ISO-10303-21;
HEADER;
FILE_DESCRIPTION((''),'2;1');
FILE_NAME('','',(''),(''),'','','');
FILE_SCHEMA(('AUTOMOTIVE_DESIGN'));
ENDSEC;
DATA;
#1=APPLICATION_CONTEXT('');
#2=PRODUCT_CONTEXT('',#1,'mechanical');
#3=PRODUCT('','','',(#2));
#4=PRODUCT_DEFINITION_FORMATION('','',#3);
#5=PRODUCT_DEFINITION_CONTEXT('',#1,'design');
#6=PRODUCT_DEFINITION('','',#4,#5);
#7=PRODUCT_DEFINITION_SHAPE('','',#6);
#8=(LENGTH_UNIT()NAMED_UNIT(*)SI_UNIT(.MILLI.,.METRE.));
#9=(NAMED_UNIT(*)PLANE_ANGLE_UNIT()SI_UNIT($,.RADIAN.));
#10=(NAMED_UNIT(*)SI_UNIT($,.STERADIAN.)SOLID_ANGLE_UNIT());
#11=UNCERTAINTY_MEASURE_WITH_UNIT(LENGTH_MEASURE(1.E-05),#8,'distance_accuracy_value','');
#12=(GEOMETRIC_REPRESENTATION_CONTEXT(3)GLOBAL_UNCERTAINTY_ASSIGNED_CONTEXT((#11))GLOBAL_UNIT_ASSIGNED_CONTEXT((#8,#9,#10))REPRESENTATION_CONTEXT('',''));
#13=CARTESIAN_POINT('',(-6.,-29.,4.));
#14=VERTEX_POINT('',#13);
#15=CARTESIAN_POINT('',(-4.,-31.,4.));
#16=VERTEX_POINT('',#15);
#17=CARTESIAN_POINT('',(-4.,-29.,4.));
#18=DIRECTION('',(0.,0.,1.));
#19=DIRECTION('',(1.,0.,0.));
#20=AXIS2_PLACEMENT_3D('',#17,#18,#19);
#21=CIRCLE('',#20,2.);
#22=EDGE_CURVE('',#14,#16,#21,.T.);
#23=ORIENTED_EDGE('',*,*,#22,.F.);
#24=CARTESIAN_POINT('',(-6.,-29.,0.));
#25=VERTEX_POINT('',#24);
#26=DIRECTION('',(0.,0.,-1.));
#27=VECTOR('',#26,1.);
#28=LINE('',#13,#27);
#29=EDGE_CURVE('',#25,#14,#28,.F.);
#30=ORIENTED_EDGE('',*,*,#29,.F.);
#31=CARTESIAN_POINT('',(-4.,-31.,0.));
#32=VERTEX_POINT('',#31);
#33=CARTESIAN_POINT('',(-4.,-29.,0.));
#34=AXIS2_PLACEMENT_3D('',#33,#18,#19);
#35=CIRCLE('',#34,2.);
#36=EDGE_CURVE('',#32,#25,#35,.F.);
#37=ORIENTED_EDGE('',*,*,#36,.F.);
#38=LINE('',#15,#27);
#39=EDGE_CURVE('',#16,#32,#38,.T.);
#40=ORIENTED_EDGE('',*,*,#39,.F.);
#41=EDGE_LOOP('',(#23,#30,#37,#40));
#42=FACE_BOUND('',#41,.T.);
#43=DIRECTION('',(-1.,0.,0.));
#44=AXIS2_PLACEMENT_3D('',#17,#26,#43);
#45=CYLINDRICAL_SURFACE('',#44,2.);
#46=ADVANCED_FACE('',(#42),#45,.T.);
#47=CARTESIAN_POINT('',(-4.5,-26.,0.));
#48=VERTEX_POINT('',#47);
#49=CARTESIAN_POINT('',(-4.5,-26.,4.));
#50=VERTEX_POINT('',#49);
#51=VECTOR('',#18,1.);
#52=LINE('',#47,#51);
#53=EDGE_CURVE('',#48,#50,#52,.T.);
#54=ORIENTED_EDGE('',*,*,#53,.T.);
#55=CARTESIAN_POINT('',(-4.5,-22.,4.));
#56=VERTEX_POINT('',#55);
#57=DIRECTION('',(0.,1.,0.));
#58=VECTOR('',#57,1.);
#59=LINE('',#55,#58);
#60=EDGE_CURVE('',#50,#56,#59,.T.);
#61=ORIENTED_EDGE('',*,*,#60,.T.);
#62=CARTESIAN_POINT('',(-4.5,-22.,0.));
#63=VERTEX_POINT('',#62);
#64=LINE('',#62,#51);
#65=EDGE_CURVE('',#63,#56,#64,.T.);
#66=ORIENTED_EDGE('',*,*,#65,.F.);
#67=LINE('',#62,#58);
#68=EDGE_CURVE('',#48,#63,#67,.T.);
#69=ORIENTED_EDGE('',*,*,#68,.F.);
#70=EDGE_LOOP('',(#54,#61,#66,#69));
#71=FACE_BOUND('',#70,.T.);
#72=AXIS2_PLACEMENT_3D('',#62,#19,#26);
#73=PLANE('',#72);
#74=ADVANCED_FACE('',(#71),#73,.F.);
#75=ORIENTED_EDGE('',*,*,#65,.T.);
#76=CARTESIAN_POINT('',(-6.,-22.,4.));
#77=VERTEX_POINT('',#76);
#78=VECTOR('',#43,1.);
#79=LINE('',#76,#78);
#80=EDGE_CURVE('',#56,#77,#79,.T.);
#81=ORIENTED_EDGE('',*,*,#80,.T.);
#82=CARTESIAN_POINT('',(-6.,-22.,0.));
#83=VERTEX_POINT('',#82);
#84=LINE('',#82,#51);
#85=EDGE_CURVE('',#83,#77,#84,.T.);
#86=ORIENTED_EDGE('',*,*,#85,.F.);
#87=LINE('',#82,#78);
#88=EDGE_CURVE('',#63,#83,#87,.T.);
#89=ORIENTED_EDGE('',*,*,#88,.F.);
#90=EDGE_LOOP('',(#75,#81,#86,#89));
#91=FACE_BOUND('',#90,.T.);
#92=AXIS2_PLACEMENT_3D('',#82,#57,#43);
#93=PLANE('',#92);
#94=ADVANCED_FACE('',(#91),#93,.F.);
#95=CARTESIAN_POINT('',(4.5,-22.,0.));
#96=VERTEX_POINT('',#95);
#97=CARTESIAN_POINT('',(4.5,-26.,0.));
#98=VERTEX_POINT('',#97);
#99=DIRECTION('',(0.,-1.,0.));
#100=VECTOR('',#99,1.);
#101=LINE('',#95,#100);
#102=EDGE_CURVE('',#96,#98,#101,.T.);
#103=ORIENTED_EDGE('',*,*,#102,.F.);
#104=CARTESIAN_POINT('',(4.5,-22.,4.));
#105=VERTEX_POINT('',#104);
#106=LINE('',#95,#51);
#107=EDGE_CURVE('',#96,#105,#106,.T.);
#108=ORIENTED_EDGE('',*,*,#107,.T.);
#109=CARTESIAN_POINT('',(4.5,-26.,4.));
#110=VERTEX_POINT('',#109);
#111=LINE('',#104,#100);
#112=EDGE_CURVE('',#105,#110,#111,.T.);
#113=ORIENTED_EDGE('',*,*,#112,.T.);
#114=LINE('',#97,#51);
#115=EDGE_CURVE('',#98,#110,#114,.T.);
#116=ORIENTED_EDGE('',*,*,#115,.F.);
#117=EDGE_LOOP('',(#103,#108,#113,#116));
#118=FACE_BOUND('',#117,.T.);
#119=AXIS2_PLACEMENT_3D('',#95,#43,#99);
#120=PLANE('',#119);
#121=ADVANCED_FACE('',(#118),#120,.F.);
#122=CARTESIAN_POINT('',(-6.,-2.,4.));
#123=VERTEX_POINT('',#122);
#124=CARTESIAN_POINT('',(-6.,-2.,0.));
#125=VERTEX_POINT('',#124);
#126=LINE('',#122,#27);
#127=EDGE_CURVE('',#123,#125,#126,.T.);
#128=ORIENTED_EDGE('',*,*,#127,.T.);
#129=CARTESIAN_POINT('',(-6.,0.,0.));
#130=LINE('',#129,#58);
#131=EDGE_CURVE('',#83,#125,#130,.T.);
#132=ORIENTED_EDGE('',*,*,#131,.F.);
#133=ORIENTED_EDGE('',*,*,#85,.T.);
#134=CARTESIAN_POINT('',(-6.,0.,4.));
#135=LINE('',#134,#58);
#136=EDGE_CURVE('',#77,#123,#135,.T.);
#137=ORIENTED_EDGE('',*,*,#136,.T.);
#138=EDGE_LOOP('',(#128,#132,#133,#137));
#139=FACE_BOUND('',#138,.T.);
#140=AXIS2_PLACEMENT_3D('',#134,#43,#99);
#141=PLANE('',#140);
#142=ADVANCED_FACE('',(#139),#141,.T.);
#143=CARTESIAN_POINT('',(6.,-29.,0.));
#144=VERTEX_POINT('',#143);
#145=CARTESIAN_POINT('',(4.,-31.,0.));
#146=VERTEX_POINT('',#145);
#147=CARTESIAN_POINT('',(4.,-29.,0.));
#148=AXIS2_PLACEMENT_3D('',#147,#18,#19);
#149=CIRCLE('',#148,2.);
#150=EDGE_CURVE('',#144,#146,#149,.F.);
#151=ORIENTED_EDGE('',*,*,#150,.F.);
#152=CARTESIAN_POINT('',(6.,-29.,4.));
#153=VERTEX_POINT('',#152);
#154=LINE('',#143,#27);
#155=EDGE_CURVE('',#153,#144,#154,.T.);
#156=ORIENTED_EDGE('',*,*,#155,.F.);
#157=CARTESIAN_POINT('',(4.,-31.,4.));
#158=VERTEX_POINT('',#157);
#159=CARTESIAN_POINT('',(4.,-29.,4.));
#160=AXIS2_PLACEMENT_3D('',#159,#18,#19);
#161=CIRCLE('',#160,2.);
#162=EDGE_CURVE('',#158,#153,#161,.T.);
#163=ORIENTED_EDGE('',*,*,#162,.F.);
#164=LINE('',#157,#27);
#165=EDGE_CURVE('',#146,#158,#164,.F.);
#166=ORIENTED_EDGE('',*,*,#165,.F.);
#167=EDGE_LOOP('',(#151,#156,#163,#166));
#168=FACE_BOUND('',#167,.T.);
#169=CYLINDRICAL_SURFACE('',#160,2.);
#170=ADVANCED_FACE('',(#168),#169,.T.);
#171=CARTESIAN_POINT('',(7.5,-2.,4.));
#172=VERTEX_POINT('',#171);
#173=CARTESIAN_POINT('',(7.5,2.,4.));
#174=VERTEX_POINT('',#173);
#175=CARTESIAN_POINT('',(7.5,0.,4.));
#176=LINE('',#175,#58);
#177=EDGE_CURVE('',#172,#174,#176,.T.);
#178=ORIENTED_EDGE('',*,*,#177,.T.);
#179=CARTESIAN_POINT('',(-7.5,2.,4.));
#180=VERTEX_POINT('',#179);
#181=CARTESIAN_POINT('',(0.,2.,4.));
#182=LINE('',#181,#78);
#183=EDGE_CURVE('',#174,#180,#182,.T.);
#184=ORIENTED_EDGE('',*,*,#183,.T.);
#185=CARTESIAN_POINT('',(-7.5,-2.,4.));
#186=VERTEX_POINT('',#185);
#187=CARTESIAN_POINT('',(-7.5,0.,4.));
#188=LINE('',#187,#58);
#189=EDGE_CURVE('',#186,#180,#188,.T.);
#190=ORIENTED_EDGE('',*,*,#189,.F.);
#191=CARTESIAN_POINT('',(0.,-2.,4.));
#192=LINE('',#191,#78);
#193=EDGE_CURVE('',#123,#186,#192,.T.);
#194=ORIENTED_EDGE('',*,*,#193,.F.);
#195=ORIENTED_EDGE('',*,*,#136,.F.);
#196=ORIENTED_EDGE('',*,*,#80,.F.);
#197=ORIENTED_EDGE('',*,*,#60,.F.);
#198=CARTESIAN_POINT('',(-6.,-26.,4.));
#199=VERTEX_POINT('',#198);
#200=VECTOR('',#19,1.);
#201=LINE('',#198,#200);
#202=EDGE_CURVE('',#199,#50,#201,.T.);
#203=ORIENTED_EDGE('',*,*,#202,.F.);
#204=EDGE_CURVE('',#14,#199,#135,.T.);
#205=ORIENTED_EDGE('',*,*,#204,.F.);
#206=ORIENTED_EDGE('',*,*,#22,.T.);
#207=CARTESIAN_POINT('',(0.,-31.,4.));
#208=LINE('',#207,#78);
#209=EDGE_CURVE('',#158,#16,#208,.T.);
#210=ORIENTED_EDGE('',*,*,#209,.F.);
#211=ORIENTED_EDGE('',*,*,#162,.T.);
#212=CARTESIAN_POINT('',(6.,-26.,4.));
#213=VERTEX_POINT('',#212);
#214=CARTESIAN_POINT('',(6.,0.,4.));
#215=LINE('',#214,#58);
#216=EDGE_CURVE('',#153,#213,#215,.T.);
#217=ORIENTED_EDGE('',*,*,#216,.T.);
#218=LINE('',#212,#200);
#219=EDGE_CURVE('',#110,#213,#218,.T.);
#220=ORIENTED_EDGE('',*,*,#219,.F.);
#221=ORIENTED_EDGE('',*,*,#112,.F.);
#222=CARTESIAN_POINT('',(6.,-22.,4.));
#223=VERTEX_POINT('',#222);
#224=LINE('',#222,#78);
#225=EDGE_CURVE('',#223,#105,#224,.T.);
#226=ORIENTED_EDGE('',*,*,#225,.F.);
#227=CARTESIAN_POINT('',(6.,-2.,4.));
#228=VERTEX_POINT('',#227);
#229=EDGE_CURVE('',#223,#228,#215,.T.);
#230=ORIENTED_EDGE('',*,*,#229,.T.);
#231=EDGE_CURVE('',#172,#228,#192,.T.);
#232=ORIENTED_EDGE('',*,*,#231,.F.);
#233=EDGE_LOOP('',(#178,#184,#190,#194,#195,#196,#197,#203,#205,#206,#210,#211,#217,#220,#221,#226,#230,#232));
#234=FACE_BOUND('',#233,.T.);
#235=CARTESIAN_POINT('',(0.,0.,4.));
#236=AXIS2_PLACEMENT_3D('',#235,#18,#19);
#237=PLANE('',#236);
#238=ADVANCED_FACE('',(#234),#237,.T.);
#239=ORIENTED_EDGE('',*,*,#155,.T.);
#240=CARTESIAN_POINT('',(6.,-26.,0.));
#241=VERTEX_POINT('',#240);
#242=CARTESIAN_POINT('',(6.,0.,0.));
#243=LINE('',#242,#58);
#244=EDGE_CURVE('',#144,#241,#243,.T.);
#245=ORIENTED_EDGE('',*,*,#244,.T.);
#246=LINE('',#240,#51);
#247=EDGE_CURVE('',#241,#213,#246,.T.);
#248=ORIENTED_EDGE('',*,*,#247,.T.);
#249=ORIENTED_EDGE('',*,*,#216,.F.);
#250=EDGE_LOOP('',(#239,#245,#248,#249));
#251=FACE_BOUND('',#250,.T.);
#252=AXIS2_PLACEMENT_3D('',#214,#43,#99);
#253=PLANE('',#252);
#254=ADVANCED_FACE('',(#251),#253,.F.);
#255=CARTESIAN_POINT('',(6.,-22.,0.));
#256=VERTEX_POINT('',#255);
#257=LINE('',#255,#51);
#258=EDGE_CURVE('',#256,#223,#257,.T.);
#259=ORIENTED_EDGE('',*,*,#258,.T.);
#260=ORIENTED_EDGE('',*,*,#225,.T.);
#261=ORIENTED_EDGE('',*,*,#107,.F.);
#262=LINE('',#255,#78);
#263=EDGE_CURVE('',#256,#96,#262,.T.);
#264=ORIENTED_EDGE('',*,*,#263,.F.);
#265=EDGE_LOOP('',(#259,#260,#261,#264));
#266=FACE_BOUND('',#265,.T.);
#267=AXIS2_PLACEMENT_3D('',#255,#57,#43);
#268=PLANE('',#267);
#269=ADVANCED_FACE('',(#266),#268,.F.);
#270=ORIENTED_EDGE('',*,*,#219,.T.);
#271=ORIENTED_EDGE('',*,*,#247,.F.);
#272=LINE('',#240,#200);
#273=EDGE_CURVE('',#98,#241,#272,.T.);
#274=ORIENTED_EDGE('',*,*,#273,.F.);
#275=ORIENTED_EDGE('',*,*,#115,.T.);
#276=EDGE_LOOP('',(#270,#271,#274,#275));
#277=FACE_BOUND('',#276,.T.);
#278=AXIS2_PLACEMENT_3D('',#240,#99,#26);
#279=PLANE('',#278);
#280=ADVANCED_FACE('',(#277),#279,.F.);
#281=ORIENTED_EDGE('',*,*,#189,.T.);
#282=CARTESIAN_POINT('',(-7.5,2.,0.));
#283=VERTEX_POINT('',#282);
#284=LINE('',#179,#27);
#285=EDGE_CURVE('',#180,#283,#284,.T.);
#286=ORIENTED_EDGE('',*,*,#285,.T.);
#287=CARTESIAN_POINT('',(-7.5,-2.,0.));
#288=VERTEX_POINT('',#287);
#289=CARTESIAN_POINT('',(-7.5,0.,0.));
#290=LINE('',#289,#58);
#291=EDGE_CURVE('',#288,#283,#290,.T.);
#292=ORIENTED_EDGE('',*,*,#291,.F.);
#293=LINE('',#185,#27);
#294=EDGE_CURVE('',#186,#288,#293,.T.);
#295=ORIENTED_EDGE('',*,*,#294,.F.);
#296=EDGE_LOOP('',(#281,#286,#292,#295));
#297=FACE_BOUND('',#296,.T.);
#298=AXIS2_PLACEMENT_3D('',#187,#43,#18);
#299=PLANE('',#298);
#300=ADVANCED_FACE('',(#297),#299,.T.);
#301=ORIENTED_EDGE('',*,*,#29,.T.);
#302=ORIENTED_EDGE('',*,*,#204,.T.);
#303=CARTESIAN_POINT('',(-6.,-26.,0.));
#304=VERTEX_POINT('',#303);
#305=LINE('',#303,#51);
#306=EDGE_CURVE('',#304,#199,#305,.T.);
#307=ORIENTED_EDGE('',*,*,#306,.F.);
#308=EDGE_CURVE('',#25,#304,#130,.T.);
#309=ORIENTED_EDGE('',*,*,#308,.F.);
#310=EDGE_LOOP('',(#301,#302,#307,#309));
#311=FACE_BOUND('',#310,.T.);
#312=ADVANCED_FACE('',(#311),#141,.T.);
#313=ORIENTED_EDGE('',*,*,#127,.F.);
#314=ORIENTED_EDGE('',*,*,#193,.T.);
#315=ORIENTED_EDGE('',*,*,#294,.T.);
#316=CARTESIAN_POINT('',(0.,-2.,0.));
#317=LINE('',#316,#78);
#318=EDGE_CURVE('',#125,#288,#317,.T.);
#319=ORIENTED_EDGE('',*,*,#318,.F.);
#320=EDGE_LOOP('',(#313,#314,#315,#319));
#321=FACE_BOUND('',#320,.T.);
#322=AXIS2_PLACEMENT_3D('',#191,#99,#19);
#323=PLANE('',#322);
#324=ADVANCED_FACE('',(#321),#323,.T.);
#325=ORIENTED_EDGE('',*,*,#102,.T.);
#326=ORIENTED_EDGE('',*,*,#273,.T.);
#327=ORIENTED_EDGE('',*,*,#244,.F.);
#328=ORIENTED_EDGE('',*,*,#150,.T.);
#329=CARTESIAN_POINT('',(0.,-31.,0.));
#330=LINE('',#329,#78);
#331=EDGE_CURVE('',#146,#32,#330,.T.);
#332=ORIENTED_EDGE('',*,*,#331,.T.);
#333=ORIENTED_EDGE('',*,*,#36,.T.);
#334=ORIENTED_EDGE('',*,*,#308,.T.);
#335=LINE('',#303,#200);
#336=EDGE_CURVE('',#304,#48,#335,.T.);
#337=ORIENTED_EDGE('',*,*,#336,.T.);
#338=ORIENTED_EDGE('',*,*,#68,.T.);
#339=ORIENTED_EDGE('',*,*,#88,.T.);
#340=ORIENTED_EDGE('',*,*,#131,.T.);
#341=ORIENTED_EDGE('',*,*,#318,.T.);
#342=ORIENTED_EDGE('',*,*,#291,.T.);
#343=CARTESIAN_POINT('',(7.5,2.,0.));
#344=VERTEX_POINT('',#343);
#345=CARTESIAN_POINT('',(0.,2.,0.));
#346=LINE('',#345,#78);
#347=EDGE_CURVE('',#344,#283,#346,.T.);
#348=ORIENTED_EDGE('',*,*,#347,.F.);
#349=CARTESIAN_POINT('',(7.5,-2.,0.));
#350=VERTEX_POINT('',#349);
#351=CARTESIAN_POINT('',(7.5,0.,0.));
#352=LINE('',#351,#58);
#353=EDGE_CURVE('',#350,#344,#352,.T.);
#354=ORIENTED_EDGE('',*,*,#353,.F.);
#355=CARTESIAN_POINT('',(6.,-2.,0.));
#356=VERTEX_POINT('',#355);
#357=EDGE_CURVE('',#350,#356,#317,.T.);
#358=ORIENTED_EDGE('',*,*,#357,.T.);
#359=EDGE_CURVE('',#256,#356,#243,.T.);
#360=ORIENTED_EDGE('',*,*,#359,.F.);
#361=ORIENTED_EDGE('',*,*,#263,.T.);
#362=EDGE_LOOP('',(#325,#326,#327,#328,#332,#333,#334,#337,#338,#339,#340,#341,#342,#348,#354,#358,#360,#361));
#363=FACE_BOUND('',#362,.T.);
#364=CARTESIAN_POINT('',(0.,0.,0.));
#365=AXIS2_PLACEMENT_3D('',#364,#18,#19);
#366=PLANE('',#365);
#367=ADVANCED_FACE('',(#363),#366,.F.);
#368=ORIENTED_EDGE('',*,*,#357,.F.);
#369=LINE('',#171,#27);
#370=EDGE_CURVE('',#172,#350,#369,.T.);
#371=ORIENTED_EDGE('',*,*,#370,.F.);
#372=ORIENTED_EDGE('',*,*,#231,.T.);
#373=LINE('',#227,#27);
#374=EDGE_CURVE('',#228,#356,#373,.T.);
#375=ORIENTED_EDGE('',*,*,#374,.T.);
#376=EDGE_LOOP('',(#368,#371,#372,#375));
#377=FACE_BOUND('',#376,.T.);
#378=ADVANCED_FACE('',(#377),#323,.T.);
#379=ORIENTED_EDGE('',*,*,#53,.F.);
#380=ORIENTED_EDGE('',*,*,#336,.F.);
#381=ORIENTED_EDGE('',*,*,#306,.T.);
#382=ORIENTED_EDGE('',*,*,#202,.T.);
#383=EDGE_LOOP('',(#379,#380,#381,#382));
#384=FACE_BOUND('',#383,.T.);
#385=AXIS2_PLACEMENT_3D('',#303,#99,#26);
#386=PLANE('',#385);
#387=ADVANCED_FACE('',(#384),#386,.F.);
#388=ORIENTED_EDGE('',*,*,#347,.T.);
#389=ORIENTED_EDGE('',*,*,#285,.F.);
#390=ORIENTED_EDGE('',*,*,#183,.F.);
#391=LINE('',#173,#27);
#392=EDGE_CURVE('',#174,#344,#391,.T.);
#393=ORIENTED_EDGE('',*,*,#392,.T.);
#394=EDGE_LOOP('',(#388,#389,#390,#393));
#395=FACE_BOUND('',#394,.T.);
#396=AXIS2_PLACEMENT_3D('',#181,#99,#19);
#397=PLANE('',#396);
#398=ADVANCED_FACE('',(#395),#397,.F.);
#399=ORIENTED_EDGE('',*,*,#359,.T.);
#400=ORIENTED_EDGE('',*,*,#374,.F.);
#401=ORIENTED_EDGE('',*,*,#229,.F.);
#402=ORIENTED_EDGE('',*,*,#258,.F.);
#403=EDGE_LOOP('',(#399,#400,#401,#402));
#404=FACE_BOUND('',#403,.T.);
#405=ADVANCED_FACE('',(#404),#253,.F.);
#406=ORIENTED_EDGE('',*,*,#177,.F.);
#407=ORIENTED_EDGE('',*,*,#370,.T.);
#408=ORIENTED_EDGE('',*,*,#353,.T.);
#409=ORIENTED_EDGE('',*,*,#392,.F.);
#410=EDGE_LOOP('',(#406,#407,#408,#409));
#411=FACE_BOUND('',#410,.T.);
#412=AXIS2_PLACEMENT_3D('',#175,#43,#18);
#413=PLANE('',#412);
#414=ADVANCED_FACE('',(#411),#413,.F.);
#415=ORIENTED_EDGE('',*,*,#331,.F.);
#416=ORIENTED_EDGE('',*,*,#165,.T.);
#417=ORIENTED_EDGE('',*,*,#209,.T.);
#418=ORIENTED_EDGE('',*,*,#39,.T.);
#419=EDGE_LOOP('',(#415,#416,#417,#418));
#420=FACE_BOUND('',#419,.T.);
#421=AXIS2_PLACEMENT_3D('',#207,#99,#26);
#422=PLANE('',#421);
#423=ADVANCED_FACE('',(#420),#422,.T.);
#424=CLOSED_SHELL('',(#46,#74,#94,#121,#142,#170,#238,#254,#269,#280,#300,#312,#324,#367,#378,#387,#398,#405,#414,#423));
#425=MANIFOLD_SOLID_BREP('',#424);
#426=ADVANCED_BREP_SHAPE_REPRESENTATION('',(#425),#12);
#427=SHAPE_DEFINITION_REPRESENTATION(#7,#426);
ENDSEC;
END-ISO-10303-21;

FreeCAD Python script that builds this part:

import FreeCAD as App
import Part
import Sketcher

V = App.Vector


def edges_at(feature, points):
    """Names of the edges that pass closest to the given points."""
    edges = feature.Shape.Edges
    near = lambda p: min(range(len(edges)), key=lambda i: edges[i].distToShape(Part.Vertex(*p))[0])
    return sorted({f"Edge{near(p) + 1}" for p in points})

doc = App.newDocument("Part")
body = doc.addObject("PartDesign::Body", "Body")

sketch1 = doc.addObject("Sketcher::SketchObject", "Sketch")
body.addObject(sketch1)
sketch1.AttachmentSupport = (doc.XY_Plane, [""])
sketch1.MapMode = "FlatFace"
sketch1.addGeometry([
    Part.LineSegment(V(-6, -2, 0), V(-6, -31, 0)),
    Part.LineSegment(V(-6, -31, 0), V(6, -31, 0)),
    Part.LineSegment(V(6, -31, 0), V(6, -2, 0)),
    Part.LineSegment(V(6, -2, 0), V(7.5, -2, 0)),
    Part.LineSegment(V(7.5, -2, 0), V(7.5, 2, 0)),
    Part.LineSegment(V(7.5, 2, 0), V(-7.5, 2, 0)),
    Part.LineSegment(V(-7.5, 2, 0), V(-7.5, -2, 0)),
    Part.LineSegment(V(-7.5, -2, 0), V(-6, -2, 0)),
], False)
sketch1.addConstraint([
    Sketcher.Constraint("Coincident", 0, 2, 1, 1),
    Sketcher.Constraint("Coincident", 1, 2, 2, 1),
    Sketcher.Constraint("Coincident", 2, 2, 3, 1),
    Sketcher.Constraint("Coincident", 3, 2, 4, 1),
    Sketcher.Constraint("Coincident", 4, 2, 5, 1),
    Sketcher.Constraint("Coincident", 5, 2, 6, 1),
    Sketcher.Constraint("Coincident", 6, 2, 7, 1),
    Sketcher.Constraint("Coincident", 7, 2, 0, 1),
    Sketcher.Constraint("Vertical", 0),
    Sketcher.Constraint("Horizontal", 1),
    Sketcher.Constraint("Vertical", 2),
    Sketcher.Constraint("Horizontal", 3),
    Sketcher.Constraint("Vertical", 4),
    Sketcher.Constraint("Horizontal", 5),
    Sketcher.Constraint("Vertical", 6),
    Sketcher.Constraint("Horizontal", 7),
    Sketcher.Constraint("Symmetric", 3, 2, 5, 2, -1, 1),
    Sketcher.Constraint("Symmetric", 2, 2, 7, 2, -2),
    Sketcher.Constraint("DistanceX", 1, 1, 1, 2, 12.0),
    Sketcher.Constraint("DistanceX", 5, 2, 5, 1, 15.0),
    Sketcher.Constraint("DistanceY", 0, 2, 0, 1, 29.0),
    Sketcher.Constraint("DistanceY", 4, 1, 4, 2, 4.0),
])
pad1 = doc.addObject("PartDesign::Pad", "Pad")
body.addObject(pad1)
pad1.Profile = sketch1
pad1.Length = 4

sketch2 = doc.addObject("Sketcher::SketchObject", "Sketch001")
body.addObject(sketch2)
sketch2.AttachmentSupport = (doc.XY_Plane, [""])
sketch2.MapMode = "FlatFace"
sketch2.AttachmentOffset = App.Placement(V(0, 0, 4), App.Rotation())
sketch2.addGeometry([
    Part.LineSegment(V(-6, -22, 0), V(-6, -26, 0)),
    Part.LineSegment(V(-6, -26, 0), V(-4.5, -26, 0)),
    Part.LineSegment(V(-4.5, -26, 0), V(-4.5, -22, 0)),
    Part.LineSegment(V(-4.5, -22, 0), V(-6, -22, 0)),
    Part.LineSegment(V(4.5, -22, 0), V(4.5, -26, 0)),
    Part.LineSegment(V(4.5, -26, 0), V(6, -26, 0)),
    Part.LineSegment(V(6, -26, 0), V(6, -22, 0)),
    Part.LineSegment(V(6, -22, 0), V(4.5, -22, 0)),
], False)
sketch2.addConstraint([
    Sketcher.Constraint("Coincident", 0, 2, 1, 1),
    Sketcher.Constraint("Coincident", 1, 2, 2, 1),
    Sketcher.Constraint("Coincident", 2, 2, 3, 1),
    Sketcher.Constraint("Coincident", 3, 2, 0, 1),
    Sketcher.Constraint("Coincident", 4, 2, 5, 1),
    Sketcher.Constraint("Coincident", 5, 2, 6, 1),
    Sketcher.Constraint("Coincident", 6, 2, 7, 1),
    Sketcher.Constraint("Coincident", 7, 2, 4, 1),
    Sketcher.Constraint("Vertical", 0),
    Sketcher.Constraint("Horizontal", 1),
    Sketcher.Constraint("Vertical", 2),
    Sketcher.Constraint("Horizontal", 3),
    Sketcher.Constraint("Vertical", 4),
    Sketcher.Constraint("Horizontal", 5),
    Sketcher.Constraint("Vertical", 6),
    Sketcher.Constraint("Horizontal", 7),
    Sketcher.Constraint("Symmetric", 1, 2, 4, 2, -2),
    Sketcher.Constraint("Symmetric", 3, 2, 6, 2, -2),
    Sketcher.Constraint("DistanceY", 0, 2, 0, 1, 4.0),
    Sketcher.Constraint("DistanceX", 1, 1, 1, 2, 1.5),
    Sketcher.Constraint("DistanceX", 0, 2, -1, 1, 6.0),
    Sketcher.Constraint("DistanceY", 0, 2, -1, 1, 26.0),
])
pocket1 = doc.addObject("PartDesign::Pocket", "Pocket")
body.addObject(pocket1)
pocket1.Profile = sketch2
pocket1.Type = "ThroughAll"
doc.recompute()

fillet = doc.addObject("PartDesign::Fillet", "Fillet")
body.addObject(fillet)
fillet.Base = (pocket1, edges_at(pocket1, [(6, -31, 2), (-6, -31, 2)]))
fillet.Radius = 2

doc.recompute()
